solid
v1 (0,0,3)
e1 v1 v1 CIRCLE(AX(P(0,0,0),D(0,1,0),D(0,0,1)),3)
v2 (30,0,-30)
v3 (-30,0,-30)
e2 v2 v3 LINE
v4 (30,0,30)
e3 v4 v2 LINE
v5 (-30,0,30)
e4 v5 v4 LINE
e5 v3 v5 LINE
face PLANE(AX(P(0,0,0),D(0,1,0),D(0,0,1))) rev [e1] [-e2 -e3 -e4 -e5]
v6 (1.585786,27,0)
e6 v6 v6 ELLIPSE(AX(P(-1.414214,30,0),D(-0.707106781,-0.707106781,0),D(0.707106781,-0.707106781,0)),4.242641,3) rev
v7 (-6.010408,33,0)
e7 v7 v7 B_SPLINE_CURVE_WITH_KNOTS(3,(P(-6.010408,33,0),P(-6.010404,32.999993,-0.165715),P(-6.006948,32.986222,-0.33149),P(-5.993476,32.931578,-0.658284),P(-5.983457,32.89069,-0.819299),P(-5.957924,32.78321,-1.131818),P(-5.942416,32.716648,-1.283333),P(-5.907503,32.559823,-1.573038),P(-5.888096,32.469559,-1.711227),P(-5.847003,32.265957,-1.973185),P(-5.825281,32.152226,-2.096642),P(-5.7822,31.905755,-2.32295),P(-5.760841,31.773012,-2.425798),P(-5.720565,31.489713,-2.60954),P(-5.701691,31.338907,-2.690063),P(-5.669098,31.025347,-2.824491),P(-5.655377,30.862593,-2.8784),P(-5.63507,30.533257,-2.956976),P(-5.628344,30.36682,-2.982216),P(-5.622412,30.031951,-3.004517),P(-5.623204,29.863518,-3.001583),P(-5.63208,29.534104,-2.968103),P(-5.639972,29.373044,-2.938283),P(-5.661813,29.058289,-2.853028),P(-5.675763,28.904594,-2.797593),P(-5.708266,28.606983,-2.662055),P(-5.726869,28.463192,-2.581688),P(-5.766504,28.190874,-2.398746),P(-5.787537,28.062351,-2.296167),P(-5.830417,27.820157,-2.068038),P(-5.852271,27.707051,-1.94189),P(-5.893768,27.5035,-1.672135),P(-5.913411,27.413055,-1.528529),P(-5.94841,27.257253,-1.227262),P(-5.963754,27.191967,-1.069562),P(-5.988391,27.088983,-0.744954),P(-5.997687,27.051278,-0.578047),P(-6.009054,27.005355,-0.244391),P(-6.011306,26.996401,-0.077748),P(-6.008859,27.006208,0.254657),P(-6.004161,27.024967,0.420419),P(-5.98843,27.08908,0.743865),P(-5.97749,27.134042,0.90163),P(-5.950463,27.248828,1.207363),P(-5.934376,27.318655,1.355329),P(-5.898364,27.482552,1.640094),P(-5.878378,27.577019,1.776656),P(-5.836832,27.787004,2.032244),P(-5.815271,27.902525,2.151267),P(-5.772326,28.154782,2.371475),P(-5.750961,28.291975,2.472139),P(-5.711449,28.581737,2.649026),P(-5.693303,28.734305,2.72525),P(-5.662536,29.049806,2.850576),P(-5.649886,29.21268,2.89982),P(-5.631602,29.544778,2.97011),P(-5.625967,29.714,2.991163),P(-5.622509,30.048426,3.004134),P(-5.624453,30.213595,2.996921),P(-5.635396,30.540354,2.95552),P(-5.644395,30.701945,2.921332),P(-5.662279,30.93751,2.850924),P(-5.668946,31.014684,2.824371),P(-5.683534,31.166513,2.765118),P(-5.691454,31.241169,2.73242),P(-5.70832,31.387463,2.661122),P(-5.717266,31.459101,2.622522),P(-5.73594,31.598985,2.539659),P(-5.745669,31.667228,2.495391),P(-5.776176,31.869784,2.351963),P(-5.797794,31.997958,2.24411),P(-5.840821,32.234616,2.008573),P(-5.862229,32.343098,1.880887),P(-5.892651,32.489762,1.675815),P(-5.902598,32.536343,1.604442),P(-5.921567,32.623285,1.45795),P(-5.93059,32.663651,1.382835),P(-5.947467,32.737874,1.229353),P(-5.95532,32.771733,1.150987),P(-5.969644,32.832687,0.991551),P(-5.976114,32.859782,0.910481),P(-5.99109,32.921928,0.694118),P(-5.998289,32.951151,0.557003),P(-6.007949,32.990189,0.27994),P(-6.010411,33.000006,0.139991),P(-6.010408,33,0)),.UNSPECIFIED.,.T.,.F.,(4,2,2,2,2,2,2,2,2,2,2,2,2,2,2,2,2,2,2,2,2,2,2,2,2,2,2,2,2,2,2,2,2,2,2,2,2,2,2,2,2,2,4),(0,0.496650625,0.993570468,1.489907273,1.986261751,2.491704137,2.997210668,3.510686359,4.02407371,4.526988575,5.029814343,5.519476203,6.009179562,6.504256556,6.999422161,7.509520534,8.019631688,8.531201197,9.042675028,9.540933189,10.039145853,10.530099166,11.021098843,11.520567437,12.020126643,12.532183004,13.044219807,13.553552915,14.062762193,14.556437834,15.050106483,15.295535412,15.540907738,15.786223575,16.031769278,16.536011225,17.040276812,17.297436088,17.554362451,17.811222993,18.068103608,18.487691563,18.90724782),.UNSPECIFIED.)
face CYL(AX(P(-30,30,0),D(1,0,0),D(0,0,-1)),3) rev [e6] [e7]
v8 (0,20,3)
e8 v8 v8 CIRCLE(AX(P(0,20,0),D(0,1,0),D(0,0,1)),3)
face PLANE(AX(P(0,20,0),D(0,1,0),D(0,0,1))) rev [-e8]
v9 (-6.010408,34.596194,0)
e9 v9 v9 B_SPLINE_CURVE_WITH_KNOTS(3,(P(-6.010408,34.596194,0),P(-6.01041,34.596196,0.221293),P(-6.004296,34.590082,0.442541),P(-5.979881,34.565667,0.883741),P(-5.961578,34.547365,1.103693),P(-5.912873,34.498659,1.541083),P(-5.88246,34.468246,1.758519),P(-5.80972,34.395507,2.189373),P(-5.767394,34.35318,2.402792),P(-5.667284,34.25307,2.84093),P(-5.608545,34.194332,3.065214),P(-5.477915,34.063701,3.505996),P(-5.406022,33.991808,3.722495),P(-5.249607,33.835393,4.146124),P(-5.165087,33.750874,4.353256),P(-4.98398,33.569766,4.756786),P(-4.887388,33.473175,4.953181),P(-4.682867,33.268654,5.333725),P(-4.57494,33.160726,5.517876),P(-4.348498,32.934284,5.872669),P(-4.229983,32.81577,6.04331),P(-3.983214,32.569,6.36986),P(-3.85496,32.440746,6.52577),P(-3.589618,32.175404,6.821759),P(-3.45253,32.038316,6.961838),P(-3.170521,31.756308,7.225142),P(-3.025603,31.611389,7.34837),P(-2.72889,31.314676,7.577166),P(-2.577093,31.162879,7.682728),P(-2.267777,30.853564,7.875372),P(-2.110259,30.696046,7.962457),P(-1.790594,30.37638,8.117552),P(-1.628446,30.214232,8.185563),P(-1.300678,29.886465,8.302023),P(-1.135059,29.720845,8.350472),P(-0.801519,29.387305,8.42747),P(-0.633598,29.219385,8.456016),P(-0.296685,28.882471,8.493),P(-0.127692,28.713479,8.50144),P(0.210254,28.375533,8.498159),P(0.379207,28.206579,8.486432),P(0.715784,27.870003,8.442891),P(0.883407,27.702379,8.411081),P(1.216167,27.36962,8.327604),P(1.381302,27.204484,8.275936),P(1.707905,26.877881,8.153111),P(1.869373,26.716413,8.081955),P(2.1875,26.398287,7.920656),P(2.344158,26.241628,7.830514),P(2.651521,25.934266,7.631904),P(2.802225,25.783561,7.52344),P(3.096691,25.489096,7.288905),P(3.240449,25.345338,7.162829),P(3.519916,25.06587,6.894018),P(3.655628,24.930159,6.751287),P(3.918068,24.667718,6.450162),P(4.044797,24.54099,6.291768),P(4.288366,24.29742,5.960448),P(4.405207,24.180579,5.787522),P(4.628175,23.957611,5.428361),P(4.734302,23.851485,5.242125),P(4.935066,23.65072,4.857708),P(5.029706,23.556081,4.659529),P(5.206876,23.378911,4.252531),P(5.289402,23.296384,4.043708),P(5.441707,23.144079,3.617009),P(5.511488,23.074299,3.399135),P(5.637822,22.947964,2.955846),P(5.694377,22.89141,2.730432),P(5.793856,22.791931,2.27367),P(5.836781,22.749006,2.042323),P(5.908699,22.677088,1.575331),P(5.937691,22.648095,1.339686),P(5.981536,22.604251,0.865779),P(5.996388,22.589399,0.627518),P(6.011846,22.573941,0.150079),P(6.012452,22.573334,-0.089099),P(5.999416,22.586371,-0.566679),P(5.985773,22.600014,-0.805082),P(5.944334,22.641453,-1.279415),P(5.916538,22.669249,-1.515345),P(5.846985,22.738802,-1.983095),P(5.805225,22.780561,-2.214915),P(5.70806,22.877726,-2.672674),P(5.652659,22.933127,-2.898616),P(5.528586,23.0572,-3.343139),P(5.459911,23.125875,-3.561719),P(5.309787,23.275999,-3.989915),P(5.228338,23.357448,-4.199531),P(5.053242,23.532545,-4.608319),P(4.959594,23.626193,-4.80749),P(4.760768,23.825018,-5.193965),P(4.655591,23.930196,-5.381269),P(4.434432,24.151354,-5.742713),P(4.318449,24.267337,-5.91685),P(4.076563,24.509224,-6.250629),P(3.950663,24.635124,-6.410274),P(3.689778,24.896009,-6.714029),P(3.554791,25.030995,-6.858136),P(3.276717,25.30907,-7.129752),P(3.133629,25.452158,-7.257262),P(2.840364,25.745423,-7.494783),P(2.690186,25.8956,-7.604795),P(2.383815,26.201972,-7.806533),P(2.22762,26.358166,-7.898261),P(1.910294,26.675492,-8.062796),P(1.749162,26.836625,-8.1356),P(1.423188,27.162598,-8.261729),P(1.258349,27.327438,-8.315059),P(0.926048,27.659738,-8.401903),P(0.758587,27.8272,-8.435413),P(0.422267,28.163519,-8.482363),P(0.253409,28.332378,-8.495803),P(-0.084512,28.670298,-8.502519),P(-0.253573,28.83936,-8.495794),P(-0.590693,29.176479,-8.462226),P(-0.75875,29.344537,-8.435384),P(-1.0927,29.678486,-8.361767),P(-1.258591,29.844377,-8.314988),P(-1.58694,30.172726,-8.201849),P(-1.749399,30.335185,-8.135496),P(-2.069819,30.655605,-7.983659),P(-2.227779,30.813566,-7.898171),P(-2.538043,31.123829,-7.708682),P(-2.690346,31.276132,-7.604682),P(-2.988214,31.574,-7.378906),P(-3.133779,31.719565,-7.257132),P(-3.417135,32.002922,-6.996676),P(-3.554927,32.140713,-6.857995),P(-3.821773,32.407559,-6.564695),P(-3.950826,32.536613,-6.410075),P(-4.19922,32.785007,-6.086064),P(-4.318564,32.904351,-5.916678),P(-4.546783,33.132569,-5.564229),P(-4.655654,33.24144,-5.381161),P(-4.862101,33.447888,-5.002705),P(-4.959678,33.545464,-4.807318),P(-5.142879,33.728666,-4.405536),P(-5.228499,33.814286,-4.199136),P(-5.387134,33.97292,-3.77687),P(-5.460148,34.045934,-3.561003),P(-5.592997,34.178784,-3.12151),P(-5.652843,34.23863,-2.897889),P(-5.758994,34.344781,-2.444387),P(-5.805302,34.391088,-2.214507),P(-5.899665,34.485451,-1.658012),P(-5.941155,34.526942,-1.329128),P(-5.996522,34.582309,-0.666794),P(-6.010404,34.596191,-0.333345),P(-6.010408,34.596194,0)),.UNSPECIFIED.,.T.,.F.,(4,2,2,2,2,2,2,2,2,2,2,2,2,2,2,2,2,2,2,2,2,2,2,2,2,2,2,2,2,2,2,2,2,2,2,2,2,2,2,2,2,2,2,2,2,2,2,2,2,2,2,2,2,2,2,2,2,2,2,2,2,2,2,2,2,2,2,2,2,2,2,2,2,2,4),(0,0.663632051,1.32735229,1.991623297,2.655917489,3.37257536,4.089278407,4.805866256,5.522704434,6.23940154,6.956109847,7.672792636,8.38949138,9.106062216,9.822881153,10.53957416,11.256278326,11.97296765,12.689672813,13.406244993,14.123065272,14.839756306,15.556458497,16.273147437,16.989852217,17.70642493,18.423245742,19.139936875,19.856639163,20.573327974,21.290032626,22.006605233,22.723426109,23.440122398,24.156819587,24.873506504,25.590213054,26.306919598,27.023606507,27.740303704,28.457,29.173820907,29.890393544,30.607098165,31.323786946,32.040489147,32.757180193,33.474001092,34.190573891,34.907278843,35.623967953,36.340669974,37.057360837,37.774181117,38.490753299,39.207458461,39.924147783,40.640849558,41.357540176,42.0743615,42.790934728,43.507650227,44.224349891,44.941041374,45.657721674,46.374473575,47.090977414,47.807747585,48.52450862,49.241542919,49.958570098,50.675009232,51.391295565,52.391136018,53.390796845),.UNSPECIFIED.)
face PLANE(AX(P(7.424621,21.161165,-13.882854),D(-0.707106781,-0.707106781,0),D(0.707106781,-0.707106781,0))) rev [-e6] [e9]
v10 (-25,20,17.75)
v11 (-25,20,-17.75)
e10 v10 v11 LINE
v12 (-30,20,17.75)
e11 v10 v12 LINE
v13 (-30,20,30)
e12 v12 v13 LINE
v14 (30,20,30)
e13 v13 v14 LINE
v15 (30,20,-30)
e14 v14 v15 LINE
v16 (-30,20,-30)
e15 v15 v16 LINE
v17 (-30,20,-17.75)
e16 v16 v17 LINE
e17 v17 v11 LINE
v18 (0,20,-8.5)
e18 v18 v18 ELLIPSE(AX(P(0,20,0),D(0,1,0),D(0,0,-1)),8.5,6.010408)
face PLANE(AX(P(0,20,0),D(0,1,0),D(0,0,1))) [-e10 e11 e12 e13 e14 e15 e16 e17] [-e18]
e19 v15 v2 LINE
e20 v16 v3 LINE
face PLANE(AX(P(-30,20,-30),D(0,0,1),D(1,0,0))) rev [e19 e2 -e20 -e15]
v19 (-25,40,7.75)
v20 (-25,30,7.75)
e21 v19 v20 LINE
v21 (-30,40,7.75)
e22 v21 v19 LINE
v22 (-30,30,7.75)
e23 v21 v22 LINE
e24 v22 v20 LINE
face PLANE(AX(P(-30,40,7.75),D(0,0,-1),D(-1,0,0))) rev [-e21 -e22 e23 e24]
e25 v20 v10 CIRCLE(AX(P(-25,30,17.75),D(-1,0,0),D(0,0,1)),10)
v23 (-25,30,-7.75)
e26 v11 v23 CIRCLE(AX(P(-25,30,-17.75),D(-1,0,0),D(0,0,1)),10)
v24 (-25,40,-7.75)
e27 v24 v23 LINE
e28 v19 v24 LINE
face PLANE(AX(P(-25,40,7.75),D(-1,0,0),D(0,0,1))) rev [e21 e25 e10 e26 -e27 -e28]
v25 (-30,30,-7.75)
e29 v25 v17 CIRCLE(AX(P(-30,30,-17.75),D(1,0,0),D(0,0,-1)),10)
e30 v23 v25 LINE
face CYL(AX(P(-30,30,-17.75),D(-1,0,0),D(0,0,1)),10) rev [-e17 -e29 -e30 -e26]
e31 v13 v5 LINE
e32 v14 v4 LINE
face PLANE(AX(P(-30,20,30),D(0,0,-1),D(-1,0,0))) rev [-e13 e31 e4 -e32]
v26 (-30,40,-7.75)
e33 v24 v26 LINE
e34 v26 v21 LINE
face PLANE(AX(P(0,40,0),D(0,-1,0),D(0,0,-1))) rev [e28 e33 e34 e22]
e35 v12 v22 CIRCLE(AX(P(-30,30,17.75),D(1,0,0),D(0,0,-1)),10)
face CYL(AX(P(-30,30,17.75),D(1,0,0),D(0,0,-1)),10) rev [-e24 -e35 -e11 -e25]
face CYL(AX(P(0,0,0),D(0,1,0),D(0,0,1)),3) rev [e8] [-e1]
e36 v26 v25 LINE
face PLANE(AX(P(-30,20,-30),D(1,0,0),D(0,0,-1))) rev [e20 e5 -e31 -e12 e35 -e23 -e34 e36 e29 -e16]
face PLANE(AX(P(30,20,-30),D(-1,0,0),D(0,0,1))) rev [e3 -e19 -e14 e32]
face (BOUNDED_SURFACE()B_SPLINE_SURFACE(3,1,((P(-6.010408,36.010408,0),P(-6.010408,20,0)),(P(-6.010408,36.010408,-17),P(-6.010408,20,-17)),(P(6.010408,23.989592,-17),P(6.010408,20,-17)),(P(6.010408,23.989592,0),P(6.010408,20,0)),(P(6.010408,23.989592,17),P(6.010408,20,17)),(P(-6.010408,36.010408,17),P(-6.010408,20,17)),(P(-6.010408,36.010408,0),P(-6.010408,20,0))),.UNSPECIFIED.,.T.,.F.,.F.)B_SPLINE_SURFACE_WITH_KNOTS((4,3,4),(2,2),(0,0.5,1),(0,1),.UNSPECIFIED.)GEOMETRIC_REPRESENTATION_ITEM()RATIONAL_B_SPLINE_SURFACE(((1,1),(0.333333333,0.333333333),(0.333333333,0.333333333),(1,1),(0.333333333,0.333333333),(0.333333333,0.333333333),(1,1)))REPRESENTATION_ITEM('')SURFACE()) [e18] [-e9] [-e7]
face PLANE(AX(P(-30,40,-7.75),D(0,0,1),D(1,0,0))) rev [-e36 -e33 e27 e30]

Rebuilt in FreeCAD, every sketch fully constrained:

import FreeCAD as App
import Part
import Sketcher


def edges_at(feature, points):
    """Names of the edges that pass closest to the given points."""
    edges = feature.Shape.Edges
    near = lambda p: min(range(len(edges)), key=lambda i: edges[i].distToShape(Part.Vertex(*p))[0])
    return sorted({f"Edge{near(p) + 1}" for p in points})


def add_polygon(sketch, points):
    """Adds a closed chain of lines whose ends are joined by coincident constraints."""
    first, n = sketch.GeometryCount, len(points)
    for a, b in zip(points, points[1:] + points[:1]):
        sketch.addGeometry(Part.LineSegment(App.Vector(*a, 0), App.Vector(*b, 0)), False)
    for i in range(n):
        sketch.addConstraint(Sketcher.Constraint("Coincident", first + i, 2, first + (i + 1) % n, 1))

doc = App.newDocument("Part")
body = doc.addObject("PartDesign::Body", "Body")

# Sketch on XZ plane
sketch1 = body.newObject("Sketcher::SketchObject", "Sketch")
sketch1.AttachmentSupport = (doc.getObject("XZ_Plane"), [""])
sketch1.MapMode = "FlatFace"
add_polygon(sketch1, [(-30, -30), (-30, 30), (30, 30), (30, -30)])  # lines 0-3
sketch1.addConstraint([
    Sketcher.Constraint("Vertical", 0),
    Sketcher.Constraint("Horizontal", 1),
    Sketcher.Constraint("Vertical", 2),
    Sketcher.Constraint("Horizontal", 3),
    Sketcher.Constraint("Symmetric", 0, 2, 2, 2, -1, 1),
    Sketcher.Constraint("Equal", 3, 0),
    Sketcher.Constraint("DistanceX", 1, 1, 1, 2, 60.0),
])
pad1 = body.newObject("PartDesign::Pad", "Pad")
pad1.Profile = sketch1
pad1.Length = 20
pad1.Reversed = True

# Sketch on an angled plane
sketch2 = body.newObject("Sketcher::SketchObject", "Sketch001")
sketch2.Placement = App.Placement(App.Vector(15, 15, 0), App.Rotation(App.Vector(0, 0, -1), App.Vector(-0.707106781, 0.707106781, 0), App.Vector(0.707106781, 0.707106781, 0), "ZXY"))
sketch2.addGeometry(Part.Circle(App.Vector(0, 21, 0), App.Vector(0, 0, 1), 8), False)
sketch2.addConstraint([
    Sketcher.Constraint("PointOnObject", 0, 3, -2),
    Sketcher.Constraint("Diameter", 0, 17.0),
    Sketcher.Constraint("DistanceY", -1, 1, 0, 3, 21.213203),
])

# Sketch on XZ plane
sketch3 = body.newObject("Sketcher::SketchObject", "Sketch002")
sketch3.AttachmentSupport = (doc.getObject("XZ_Plane"), [""])
sketch3.MapMode = "FlatFace"
sketch3.AttachmentOffset = App.Placement(App.Vector(0, 0, -20), App.Rotation())
sketch3.addGeometry(Part.Ellipse(App.Vector(0, -8.5, 0), App.Vector(6.010408, 0, 0), App.Vector(0, 0, 0)), False)
sketch3.addConstraint(Sketcher.Constraint("Block", 0))

additiveloft = body.newObject("PartDesign::AdditiveLoft", "AdditiveLoft")
additiveloft.Profile = sketch2
additiveloft.Sections = [sketch3]

# Sketch on YZ plane
sketch4 = body.newObject("Sketcher::SketchObject", "Sketch003")
sketch4.AttachmentSupport = (doc.getObject("YZ_Plane"), [""])
sketch4.MapMode = "FlatFace"
sketch4.AttachmentOffset = App.Placement(App.Vector(0, 0, 30), App.Rotation())
sketch4.addGeometry(Part.Circle(App.Vector(30, 0, 0), App.Vector(0, 0, 1), 3), False)
sketch4.addConstraint([
    Sketcher.Constraint("PointOnObject", 0, 3, -1),
    Sketcher.Constraint("Diameter", 0, 6.0),
    Sketcher.Constraint("DistanceX", -1, 1, 0, 3, 30.0),
])
pocket1 = body.newObject("PartDesign::Pocket", "Pocket")
pocket1.Profile = sketch4
pocket1.Type = "ThroughAll"

# Sketch on XZ plane
sketch5 = body.newObject("Sketcher::SketchObject", "Sketch004")
sketch5.AttachmentSupport = (doc.getObject("XZ_Plane"), [""])
sketch5.MapMode = "FlatFace"
sketch5.AttachmentOffset = App.Placement(App.Vector(0, 0, -20), App.Rotation())
sketch5.addGeometry(Part.Circle(App.Vector(0, 0, 0), App.Vector(0, 0, 1), 3), False)
sketch5.addConstraint([
    Sketcher.Constraint("Coincident", 0, 3, -1, 1),
    Sketcher.Constraint("Diameter", 0, 6.0),
])
pocket2 = body.newObject("PartDesign::Pocket", "Pocket001")
pocket2.Profile = sketch5
pocket2.Type = "ThroughAll"
pocket2.Reversed = True

# Sketch on XZ plane
sketch6 = body.newObject("Sketcher::SketchObject", "Sketch005")
sketch6.AttachmentSupport = (doc.getObject("XZ_Plane"), [""])
sketch6.MapMode = "FlatFace"
sketch6.AttachmentOffset = App.Placement(App.Vector(0, 0, -20), App.Rotation())
add_polygon(sketch6, [(-30, -8), (-30, 8), (-25, 8), (-25, -8)])  # lines 0-3
sketch6.addConstraint([
    Sketcher.Constraint("Vertical", 0),
    Sketcher.Constraint("Horizontal", 1),
    Sketcher.Constraint("Vertical", 2),
    Sketcher.Constraint("Horizontal", 3),
    Sketcher.Constraint("DistanceX", 1, 1, 1, 2, 5.0),
    Sketcher.Constraint("DistanceY", 0, 1, 0, 2, 15.5),
    Sketcher.Constraint("DistanceX", 0, 2, -1, 1, 30.0),
    Sketcher.Constraint("DistanceY", -1, 1, 0, 2, 7.75),
])
pad2 = body.newObject("PartDesign::Pad", "Pad001")
pad2.Profile = sketch6
pad2.Length = 20
pad2.Reversed = True
doc.recompute()

fillet = body.newObject("PartDesign::Fillet", "Fillet")
fillet.Base = (pad2, edges_at(pad2, [(-27.5, 20, 7.75), (-27.5, 20, -7.75)]))
fillet.Radius = 10

# Sketch on an angled plane
sketch7 = body.newObject("Sketcher::SketchObject", "Sketch006")
sketch7.Placement = App.Placement(App.Vector(-8.989592, 8.989592, 0), App.Rotation(App.Vector(0, 0, 1), App.Vector(0.707106781, 0.707106781, 0), App.Vector(-0.707106781, 0.707106781, 0), "ZXY"))
add_polygon(sketch7, [(-13.9, 21.2), (-13.9, 20.2), (14.2, 20.2), (14.2, 21.2)])  # lines 0-3
sketch7.addConstraint([
    Sketcher.Constraint("Vertical", 0),
    Sketcher.Constraint("Horizontal", 1),
    Sketcher.Constraint("Vertical", 2),
    Sketcher.Constraint("Horizontal", 3),
    Sketcher.Constraint("DistanceY", 0, 2, 0, 1, 1.0),
    Sketcher.Constraint("DistanceX", 1, 1, 1, 2, 28.11193),
    Sketcher.Constraint("DistanceX", 0, 2, -1, 1, 13.882854),
    Sketcher.Constraint("DistanceY", -1, 1, 0, 2, 20.213203),
])
pocket3 = body.newObject("PartDesign::Pocket", "Pocket002")
pocket3.Profile = sketch7
pocket3.Type = "TwoLengths"
pocket3.Length = 23
pocket3.Length2 = 3
pocket3.Reversed = True

doc.recompute()
